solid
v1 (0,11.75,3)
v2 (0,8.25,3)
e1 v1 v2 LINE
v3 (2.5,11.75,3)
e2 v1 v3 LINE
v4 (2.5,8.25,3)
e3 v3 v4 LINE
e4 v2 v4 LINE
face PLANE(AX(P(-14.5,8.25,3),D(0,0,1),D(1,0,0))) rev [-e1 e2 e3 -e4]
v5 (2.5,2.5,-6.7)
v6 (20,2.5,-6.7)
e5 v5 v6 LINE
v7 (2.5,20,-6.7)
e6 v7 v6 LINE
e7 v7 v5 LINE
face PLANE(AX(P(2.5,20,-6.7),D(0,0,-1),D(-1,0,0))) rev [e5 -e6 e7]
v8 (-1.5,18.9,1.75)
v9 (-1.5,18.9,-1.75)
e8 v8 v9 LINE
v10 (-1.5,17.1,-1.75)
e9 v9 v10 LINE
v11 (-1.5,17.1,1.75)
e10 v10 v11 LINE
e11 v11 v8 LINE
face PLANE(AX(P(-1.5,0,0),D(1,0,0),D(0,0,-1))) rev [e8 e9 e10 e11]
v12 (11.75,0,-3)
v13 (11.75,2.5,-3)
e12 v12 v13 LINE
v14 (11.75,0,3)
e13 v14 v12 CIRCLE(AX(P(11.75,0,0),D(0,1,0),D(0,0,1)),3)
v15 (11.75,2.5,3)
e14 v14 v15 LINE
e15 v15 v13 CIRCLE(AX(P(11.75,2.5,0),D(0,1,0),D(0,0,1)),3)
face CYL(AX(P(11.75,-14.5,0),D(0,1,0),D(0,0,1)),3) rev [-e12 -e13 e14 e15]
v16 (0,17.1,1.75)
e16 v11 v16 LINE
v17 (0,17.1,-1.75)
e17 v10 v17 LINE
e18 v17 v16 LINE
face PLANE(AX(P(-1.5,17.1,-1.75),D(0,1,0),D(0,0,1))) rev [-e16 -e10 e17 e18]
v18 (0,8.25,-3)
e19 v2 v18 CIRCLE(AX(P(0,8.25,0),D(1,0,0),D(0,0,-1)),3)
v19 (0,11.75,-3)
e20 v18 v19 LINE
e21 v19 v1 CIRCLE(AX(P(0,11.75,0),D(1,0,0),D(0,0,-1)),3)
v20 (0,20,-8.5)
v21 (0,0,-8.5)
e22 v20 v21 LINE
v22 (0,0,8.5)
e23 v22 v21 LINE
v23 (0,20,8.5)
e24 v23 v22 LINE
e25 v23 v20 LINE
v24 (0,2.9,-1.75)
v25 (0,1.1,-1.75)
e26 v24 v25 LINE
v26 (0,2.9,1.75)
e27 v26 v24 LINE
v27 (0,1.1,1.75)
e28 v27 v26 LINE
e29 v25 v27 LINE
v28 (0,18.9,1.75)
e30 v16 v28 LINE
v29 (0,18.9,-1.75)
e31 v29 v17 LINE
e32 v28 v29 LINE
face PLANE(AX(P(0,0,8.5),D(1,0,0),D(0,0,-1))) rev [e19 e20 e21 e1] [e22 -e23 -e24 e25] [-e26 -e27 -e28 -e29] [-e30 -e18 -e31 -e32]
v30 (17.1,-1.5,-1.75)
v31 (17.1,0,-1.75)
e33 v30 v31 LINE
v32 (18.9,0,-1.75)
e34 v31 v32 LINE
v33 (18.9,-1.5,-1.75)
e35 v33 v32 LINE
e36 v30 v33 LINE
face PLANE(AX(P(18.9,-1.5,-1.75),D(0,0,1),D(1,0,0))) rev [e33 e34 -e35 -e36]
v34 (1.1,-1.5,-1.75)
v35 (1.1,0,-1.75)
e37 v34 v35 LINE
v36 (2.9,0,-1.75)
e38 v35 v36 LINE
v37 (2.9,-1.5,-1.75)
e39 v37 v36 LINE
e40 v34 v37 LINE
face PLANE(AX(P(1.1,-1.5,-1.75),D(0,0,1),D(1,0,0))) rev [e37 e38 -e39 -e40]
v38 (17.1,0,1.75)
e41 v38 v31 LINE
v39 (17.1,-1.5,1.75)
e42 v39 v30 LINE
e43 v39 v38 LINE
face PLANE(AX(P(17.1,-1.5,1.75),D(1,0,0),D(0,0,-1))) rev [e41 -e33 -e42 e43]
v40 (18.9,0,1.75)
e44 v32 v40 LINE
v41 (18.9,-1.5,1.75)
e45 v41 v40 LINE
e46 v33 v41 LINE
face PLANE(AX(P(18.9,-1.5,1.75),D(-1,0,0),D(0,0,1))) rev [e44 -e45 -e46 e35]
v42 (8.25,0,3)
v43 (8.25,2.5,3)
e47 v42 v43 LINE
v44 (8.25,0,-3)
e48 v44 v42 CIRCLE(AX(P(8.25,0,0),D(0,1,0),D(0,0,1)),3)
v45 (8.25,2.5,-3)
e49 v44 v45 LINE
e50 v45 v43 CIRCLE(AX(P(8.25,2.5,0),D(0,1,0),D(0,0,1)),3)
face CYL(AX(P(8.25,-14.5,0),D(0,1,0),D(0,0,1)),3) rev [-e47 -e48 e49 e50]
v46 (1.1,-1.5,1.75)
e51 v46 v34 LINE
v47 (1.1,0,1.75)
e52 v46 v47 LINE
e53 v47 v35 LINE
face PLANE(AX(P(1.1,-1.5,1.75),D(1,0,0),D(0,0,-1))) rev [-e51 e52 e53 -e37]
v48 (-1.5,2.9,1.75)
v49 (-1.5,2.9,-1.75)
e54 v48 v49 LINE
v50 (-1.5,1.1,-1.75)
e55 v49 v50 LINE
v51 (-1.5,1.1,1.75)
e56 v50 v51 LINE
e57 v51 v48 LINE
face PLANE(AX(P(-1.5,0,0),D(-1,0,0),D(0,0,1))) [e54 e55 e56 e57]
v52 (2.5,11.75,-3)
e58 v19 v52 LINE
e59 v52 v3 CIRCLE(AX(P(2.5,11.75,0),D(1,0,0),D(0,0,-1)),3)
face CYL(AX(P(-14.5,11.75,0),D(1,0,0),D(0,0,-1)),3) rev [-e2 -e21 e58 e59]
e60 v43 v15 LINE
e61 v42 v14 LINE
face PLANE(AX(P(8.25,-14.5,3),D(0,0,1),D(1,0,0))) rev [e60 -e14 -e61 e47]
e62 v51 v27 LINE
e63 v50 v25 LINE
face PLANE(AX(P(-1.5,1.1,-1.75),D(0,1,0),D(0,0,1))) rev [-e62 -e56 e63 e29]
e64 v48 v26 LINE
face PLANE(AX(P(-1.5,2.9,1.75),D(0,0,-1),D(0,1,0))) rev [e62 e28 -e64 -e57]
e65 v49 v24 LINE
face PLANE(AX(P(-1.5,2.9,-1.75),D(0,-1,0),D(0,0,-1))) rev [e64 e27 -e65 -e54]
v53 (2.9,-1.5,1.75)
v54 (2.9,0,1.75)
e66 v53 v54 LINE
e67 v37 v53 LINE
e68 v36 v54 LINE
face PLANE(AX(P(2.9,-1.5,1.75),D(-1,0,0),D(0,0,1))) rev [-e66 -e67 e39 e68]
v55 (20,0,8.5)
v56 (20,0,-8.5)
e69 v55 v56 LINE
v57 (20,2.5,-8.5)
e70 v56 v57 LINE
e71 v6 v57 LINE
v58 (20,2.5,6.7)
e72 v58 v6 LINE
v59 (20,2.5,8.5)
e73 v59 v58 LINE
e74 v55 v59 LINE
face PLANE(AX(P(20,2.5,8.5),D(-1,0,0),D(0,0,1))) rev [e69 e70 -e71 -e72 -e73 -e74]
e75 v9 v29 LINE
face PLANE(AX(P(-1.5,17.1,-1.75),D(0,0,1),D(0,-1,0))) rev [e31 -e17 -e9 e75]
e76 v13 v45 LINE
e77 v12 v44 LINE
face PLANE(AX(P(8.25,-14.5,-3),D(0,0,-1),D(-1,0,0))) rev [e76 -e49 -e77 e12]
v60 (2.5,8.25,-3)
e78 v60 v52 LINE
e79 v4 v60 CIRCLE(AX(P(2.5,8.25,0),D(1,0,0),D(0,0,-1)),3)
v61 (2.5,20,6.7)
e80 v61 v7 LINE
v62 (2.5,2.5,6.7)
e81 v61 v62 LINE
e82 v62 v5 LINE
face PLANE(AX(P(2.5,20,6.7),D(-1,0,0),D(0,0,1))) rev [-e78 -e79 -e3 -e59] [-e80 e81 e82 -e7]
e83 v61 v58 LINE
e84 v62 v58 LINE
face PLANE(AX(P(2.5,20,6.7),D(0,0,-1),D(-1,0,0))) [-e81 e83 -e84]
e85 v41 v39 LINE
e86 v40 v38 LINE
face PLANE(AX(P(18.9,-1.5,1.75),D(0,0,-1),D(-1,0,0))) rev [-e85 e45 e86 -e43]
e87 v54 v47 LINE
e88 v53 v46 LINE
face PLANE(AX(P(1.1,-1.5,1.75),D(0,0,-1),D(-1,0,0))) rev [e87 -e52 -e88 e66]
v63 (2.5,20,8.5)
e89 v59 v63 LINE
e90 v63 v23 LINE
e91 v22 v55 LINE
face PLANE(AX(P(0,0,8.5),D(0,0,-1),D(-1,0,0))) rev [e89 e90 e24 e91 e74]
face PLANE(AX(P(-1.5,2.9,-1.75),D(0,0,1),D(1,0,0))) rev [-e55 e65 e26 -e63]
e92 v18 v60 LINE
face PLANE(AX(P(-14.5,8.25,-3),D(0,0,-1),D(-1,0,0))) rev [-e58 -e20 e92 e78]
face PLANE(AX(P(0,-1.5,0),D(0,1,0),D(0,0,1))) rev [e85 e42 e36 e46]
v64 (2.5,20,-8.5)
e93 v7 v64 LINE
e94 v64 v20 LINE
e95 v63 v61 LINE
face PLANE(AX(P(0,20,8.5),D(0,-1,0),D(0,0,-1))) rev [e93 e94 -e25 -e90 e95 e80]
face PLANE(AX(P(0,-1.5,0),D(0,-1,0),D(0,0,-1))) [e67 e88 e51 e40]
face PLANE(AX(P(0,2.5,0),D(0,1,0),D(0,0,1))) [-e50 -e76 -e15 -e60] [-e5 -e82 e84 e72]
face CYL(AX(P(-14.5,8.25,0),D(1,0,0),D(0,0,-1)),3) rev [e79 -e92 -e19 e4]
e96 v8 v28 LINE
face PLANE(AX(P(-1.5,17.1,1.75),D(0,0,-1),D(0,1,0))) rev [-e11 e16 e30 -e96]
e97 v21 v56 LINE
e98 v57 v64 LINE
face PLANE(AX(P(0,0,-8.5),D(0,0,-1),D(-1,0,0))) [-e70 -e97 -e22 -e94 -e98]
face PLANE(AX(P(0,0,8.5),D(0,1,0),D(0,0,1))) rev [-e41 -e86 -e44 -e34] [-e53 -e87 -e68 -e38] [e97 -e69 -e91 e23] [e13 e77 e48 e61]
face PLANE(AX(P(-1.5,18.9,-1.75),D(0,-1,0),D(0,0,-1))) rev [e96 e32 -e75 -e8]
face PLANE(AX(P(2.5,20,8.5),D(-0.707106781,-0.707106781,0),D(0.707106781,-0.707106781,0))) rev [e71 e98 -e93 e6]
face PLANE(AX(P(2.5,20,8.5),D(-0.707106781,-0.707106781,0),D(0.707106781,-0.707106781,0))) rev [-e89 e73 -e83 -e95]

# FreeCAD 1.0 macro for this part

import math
import FreeCAD as App
import Part
import Sketcher

V = App.Vector
Q = App.Units.Quantity


def add_polygon(sketch, points):
    """Adds a closed chain of lines whose ends are joined by coincident constraints."""
    first, n = sketch.GeometryCount, len(points)
    for a, b in zip(points, points[1:] + points[:1]):
        sketch.addGeometry(Part.LineSegment(App.Vector(*a, 0), App.Vector(*b, 0)), False)
    for i in range(n):
        sketch.addConstraint(Sketcher.Constraint("Coincident", first + i, 2, first + (i + 1) % n, 1))

doc = App.newDocument("Part")
body = doc.addObject("PartDesign::Body", "Body")

# Sketch on XY plane
sketch1 = body.newObject("Sketcher::SketchObject", "Sketch")
sketch1.AttachmentSupport = (doc.getObject("XY_Plane"), [""])
sketch1.MapMode = "FlatFace"
add_polygon(sketch1, [(2.5, 20), (0, 20), (0, 0), (20, 0), (20, 2.5)])  # lines 0-4
sketch1.addConstraint([
    Sketcher.Constraint("Horizontal", 0),
    Sketcher.Constraint("Vertical", 1),
    Sketcher.Constraint("Horizontal", 2),
    Sketcher.Constraint("Vertical", 3),
    Sketcher.Constraint("Coincident", 1, 2, -1, 1),
    Sketcher.Constraint("Equal", 2, 1),
    Sketcher.Constraint("Equal", 0, 3),
    Sketcher.Constraint("DistanceX", 2, 1, 2, 2, Q("20 mm")),
    Sketcher.Constraint("DistanceX", 0, 2, 0, 1, Q("2.5 mm")),
])
pad1 = body.newObject("PartDesign::Pad", "Pad")
pad1.Profile = sketch1
pad1.Length = 17
pad1.Midplane = True

# Sketch on XZ plane
sketch2 = body.newObject("Sketcher::SketchObject", "Sketch001")
sketch2.AttachmentSupport = (doc.getObject("XZ_Plane"), [""])
sketch2.MapMode = "FlatFace"
sketch2.AttachmentOffset = App.Placement(V(0, 0, -2.5), App.Rotation())
add_polygon(sketch2, [(2, 7), (2, -7), (20, -7), (20, 7)])  # lines 0-3
sketch2.addConstraint([
    Sketcher.Constraint("Vertical", 0),
    Sketcher.Constraint("Horizontal", 1),
    Sketcher.Constraint("Vertical", 2),
    Sketcher.Constraint("Horizontal", 3),
    Sketcher.Constraint("DistanceX", 1, 1, 1, 2, Q("17.5 mm")),
    Sketcher.Constraint("DistanceY", 0, 2, 0, 1, Q("13.4 mm")),
    Sketcher.Constraint("DistanceX", -1, 1, 1, 2, Q("20 mm")),
    Sketcher.Constraint("DistanceY", 0, 2, -1, 1, Q("6.7 mm")),
])
pocket1 = body.newObject("PartDesign::Pocket", "Pocket")
pocket1.Profile = sketch2
pocket1.Type = "ThroughAll"

# Sketch on XZ plane
sketch3 = body.newObject("Sketcher::SketchObject", "Sketch002")
sketch3.AttachmentSupport = (doc.getObject("XZ_Plane"), [""])
sketch3.MapMode = "FlatFace"
sketch3.AttachmentOffset = App.Placement(V(0, 0, -2.5), App.Rotation())
sketch3.addGeometry([
    Part.LineSegment(V(11.8, -3, 0), V(8.2, -3, 0)),
    Part.ArcOfCircle(Part.Circle(V(8.2, 0, 0), V(0, 0, 1), 3), math.radians(90), math.radians(270)),
    Part.LineSegment(V(8.2, 3, 0), V(11.8, 3, 0)),
    Part.ArcOfCircle(Part.Circle(V(11.8, 0, 0), V(0, 0, 1), 3), math.radians(-90), math.radians(90)),
], False)
sketch3.addConstraint([
    Sketcher.Constraint("Tangent", 0, 2, 1, 2),
    Sketcher.Constraint("Tangent", 1, 1, 2, 1),
    Sketcher.Constraint("Tangent", 2, 2, 3, 2),
    Sketcher.Constraint("Tangent", 3, 1, 0, 1),
    Sketcher.Constraint("Horizontal", 0),
    Sketcher.Constraint("Horizontal", 2),
    Sketcher.Constraint("PointOnObject", 1, 3, -1),
    Sketcher.Constraint("Radius", 1, Q("3 mm")),
    Sketcher.Constraint("DistanceX", 0, 2, 0, 1, Q("3.5 mm")),
    Sketcher.Constraint("DistanceX", -1, 1, 1, 3, Q("8.25 mm")),
])
pocket2 = body.newObject("PartDesign::Pocket", "Pocket001")
pocket2.Profile = sketch3
pocket2.Length = 17
pocket2.Reversed = True

# Sketch on YZ plane
sketch4 = body.newObject("Sketcher::SketchObject", "Sketch003")
sketch4.AttachmentSupport = (doc.getObject("YZ_Plane"), [""])
sketch4.MapMode = "FlatFace"
sketch4.AttachmentOffset = App.Placement(V(0, 0, 2.5), App.Rotation())
sketch4.addGeometry([
    Part.LineSegment(V(11.8, 3, 0), V(8.2, 3, 0)),
    Part.ArcOfCircle(Part.Circle(V(8.2, 0, 0), V(0, 0, 1), 3), math.radians(90), math.radians(270)),
    Part.LineSegment(V(8.2, -3, 0), V(11.8, -3, 0)),
    Part.ArcOfCircle(Part.Circle(V(11.8, 0, 0), V(0, 0, 1), 3), math.radians(-90), math.radians(90)),
], False)
sketch4.addConstraint([
    Sketcher.Constraint("Tangent", 0, 2, 1, 1),
    Sketcher.Constraint("Tangent", 1, 2, 2, 1),
    Sketcher.Constraint("Tangent", 2, 2, 3, 1),
    Sketcher.Constraint("Tangent", 3, 2, 0, 1),
    Sketcher.Constraint("Horizontal", 0),
    Sketcher.Constraint("Horizontal", 2),
    Sketcher.Constraint("PointOnObject", 1, 3, -1),
    Sketcher.Constraint("Radius", 1, Q("3 mm")),
    Sketcher.Constraint("DistanceX", 0, 2, 0, 1, Q("3.5 mm")),
    Sketcher.Constraint("DistanceX", -1, 1, 1, 3, Q("8.25 mm")),
])
pocket3 = body.newObject("PartDesign::Pocket", "Pocket002")
pocket3.Profile = sketch4
pocket3.Length = 17

# Sketch on XZ plane
sketch5 = body.newObject("Sketcher::SketchObject", "Sketch004")
sketch5.AttachmentSupport = (doc.getObject("XZ_Plane"), [""])
sketch5.MapMode = "FlatFace"
add_polygon(sketch5, [(1.1, 1.8), (1.1, -1.8), (2.9, -1.8), (2.9, 1.8)])  # lines 0-3
add_polygon(sketch5, [(17.1, 1.8), (17.1, -1.8), (18.9, -1.8), (18.9, 1.8)])  # lines 4-7
sketch5.addConstraint([
    Sketcher.Constraint("Vertical", 0),
    Sketcher.Constraint("Horizontal", 1),
    Sketcher.Constraint("Vertical", 2),
    Sketcher.Constraint("Horizontal", 3),
    Sketcher.Constraint("Vertical", 4),
    Sketcher.Constraint("Horizontal", 5),
    Sketcher.Constraint("Vertical", 6),
    Sketcher.Constraint("Horizontal", 7),
    Sketcher.Constraint("Horizontal", 1, 2, 4, 2),
    Sketcher.Constraint("Horizontal", 3, 2, 6, 2),
    Sketcher.Constraint("Equal", 3, 5),
    Sketcher.Constraint("DistanceX", 1, 1, 1, 2, Q("1.8 mm")),
    Sketcher.Constraint("DistanceY", 0, 2, 0, 1, Q("3.5 mm")),
    Sketcher.Constraint("DistanceX", 0, 2, 4, 2, Q("16 mm")),
    Sketcher.Constraint("DistanceX", -1, 1, 0, 2, Q("1.1 mm")),
    Sketcher.Constraint("DistanceY", 0, 2, -1, 1, Q("1.75 mm")),
])
pad2 = body.newObject("PartDesign::Pad", "Pad001")
pad2.Profile = sketch5
pad2.Length = 1.5

# Sketch on YZ plane
sketch6 = body.newObject("Sketcher::SketchObject", "Sketch005")
sketch6.AttachmentSupport = (doc.getObject("YZ_Plane"), [""])
sketch6.MapMode = "FlatFace"
add_polygon(sketch6, [(2.9, -1.8), (1.1, -1.8), (1.1, 1.8), (2.9, 1.8)])  # lines 0-3
add_polygon(sketch6, [(18.9, -1.8), (17.1, -1.8), (17.1, 1.8), (18.9, 1.8)])  # lines 4-7
sketch6.addConstraint([
    Sketcher.Constraint("Horizontal", 0),
    Sketcher.Constraint("Vertical", 1),
    Sketcher.Constraint("Horizontal", 2),
    Sketcher.Constraint("Vertical", 3),
    Sketcher.Constraint("Horizontal", 4),
    Sketcher.Constraint("Vertical", 5),
    Sketcher.Constraint("Horizontal", 6),
    Sketcher.Constraint("Vertical", 7),
    Sketcher.Constraint("Horizontal", 3, 2, 4, 2),
    Sketcher.Constraint("Horizontal", 2, 2, 5, 2),
    Sketcher.Constraint("Equal", 2, 4),
    Sketcher.Constraint("DistanceX", 0, 2, 0, 1, Q("1.8 mm")),
    Sketcher.Constraint("DistanceY", 1, 1, 1, 2, Q("3.5 mm")),
    Sketcher.Constraint("DistanceX", 0, 2, 4, 2, Q("16 mm")),
    Sketcher.Constraint("DistanceX", -1, 1, 0, 2, Q("1.1 mm")),
    Sketcher.Constraint("DistanceY", 0, 2, -1, 1, Q("1.75 mm")),
])
pad3 = body.newObject("PartDesign::Pad", "Pad002")
pad3.Profile = sketch6
pad3.Length = 1.5
pad3.Reversed = True

doc.recompute()
